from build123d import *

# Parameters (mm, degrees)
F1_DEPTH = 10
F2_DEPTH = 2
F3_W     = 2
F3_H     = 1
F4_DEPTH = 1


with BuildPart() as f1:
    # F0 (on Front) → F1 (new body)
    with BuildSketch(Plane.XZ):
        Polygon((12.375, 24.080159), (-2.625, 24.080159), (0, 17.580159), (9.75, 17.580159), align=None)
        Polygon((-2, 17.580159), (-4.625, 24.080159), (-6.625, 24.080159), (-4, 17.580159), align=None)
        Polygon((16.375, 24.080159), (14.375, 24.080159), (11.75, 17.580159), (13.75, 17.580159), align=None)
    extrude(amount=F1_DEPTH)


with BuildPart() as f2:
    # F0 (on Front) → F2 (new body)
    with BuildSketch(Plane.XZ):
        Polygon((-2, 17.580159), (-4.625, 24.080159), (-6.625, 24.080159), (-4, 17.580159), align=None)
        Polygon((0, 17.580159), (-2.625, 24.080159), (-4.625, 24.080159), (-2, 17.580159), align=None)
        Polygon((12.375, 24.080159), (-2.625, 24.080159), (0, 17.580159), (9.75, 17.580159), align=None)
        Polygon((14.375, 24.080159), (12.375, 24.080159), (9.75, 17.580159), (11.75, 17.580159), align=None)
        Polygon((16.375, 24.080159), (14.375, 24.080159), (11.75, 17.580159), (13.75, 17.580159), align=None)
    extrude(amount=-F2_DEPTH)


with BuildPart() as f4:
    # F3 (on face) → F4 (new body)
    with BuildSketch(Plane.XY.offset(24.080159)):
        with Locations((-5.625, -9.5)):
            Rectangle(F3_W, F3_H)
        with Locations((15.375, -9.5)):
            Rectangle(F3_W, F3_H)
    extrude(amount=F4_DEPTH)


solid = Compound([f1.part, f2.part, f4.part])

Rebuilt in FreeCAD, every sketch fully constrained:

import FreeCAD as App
import Part
import Sketcher
Q = App.Units.Quantity


def add_polygon(sketch, points):
    """Adds a closed chain of lines whose ends are joined by coincident constraints."""
    first, n = sketch.GeometryCount, len(points)
    for a, b in zip(points, points[1:] + points[:1]):
        sketch.addGeometry(Part.LineSegment(App.Vector(*a, 0), App.Vector(*b, 0)), False)
    for i in range(n):
        sketch.addConstraint(Sketcher.Constraint("Coincident", first + i, 2, first + (i + 1) % n, 1))

doc = App.newDocument("Part")
params = doc.addObject("Spreadsheet::Sheet", "Params")
for row, (alias, value) in enumerate([
    ("sketch1_width", "15 mm"),
    ("sketch1_width2", "2 mm"),
    ("sketch1_width3", "9.75 mm"),
    ("pad1_length", "10 mm"),
    ("sketch2_width", "23 mm"),
    ("sketch2_width2", "17.75 mm"),
    ("pad2_length", "2 mm"),
    ("sketch3_width", "2 mm"),
    ("sketch3_height", "1 mm"),
    ("pad3_length", "1 mm"),
], start=1):
    params.set(f"A{row}", alias)
    params.set(f"B{row}", "=" + value)
    params.setAlias(f"B{row}", alias)

body = doc.addObject("PartDesign::Body", "Body")
body.AllowCompound = True

sketch1 = body.newObject("Sketcher::SketchObject", "Sketch")
sketch1.AttachmentSupport = (doc.getObject("XZ_Plane"), [""])
sketch1.MapMode = "FlatFace"
add_polygon(sketch1, [(12.4, 24.1), (-2.6, 24.1), (0, 17.6), (9.8, 17.6)])
add_polygon(sketch1, [(-2, 17.6), (-4.6, 24.1), (-6.6, 24.1), (-4, 17.6)])
add_polygon(sketch1, [(16.4, 24.1), (14.4, 24.1), (11.8, 17.6), (13.8, 17.6)])
sketch1.addConstraint(Sketcher.Constraint("Horizontal", 0))
sketch1.addConstraint(Sketcher.Constraint("Horizontal", 2))
sketch1.addConstraint(Sketcher.Constraint("Horizontal", 5))
sketch1.addConstraint(Sketcher.Constraint("Horizontal", 7))
sketch1.addConstraint(Sketcher.Constraint("Horizontal", 8))
sketch1.addConstraint(Sketcher.Constraint("Horizontal", 10))
sketch1.addConstraint(Sketcher.Constraint("PointOnObject", 1, 2, -2))
sketch1.addConstraint(Sketcher.Constraint("Parallel", 1, 4))
sketch1.addConstraint(Sketcher.Constraint("Parallel", 4, 6))
sketch1.addConstraint(Sketcher.Constraint("Parallel", 3, 9))
sketch1.addConstraint(Sketcher.Constraint("Parallel", 9, 11))
sketch1.addConstraint(Sketcher.Constraint("Horizontal", 3, 2, 4, 2))
sketch1.addConstraint(Sketcher.Constraint("Horizontal", 2, 2, 6, 2))
sketch1.addConstraint(Sketcher.Constraint("Horizontal", 5, 2, 8, 2))
sketch1.addConstraint(Sketcher.Constraint("Horizontal", 7, 2, 9, 2))
sketch1.addConstraint(Sketcher.Constraint("Equal", 7, 8))
sketch1.addConstraint(Sketcher.Constraint("Equal", 1, 3))
sketch1.addConstraint(Sketcher.Constraint("DistanceX", 0, 2, 0, 1, Q("15 mm")))
sketch1.addConstraint(Sketcher.Constraint("DistanceX", 5, 2, 5, 1, Q("2 mm")))
sketch1.addConstraint(Sketcher.Constraint("DistanceX", 6, 2, -1, 1, Q("4 mm")))
sketch1.addConstraint(Sketcher.Constraint("DistanceX", 3, 2, 8, 2, Q("2 mm")))
sketch1.addConstraint(Sketcher.Constraint("DistanceX", 2, 1, 2, 2, Q("9.75 mm")))
sketch1.addConstraint(Sketcher.Constraint("DistanceY", 1, 2, 0, 2, Q("6.5 mm")))
sketch1.addConstraint(Sketcher.Constraint("DistanceY", -1, 1, 0, 2, Q("24.080159 mm")))
sketch1.setExpression("Constraints[29]", "Params.sketch1_width")
sketch1.setExpression("Constraints[30]", "Params.sketch1_width2")
sketch1.setExpression("Constraints[33]", "Params.sketch1_width3")
pad1 = body.newObject("PartDesign::Pad", "Pad")
pad1.Profile = sketch1
pad1.setExpression("Length", "Params.pad1_length")
body2 = doc.addObject("PartDesign::Body", "Body001")

sketch2 = body2.newObject("Sketcher::SketchObject", "Sketch001")
sketch2.AttachmentSupport = (doc.getObject("XZ_Plane001"), [""])
sketch2.MapMode = "FlatFace"
add_polygon(sketch2, [(-7, 24), (-4, 18), (14, 18), (16, 24)])
sketch2.addConstraint(Sketcher.Constraint("Horizontal", 1))
sketch2.addConstraint(Sketcher.Constraint("Horizontal", 3))
sketch2.addConstraint(Sketcher.Constraint("Equal", 0, 2))
sketch2.addConstraint(Sketcher.Constraint("DistanceX", 3, 2, 3, 1, Q("23 mm")))
sketch2.addConstraint(Sketcher.Constraint("DistanceX", 0, 2, -1, 1, Q("4 mm")))
sketch2.addConstraint(Sketcher.Constraint("DistanceX", 1, 1, 1, 2, Q("17.75 mm")))
sketch2.addConstraint(Sketcher.Constraint("DistanceY", 1, 2, 2, 2, Q("6.5 mm")))
sketch2.addConstraint(Sketcher.Constraint("DistanceY", -1, 1, 0, 2, Q("17.580159 mm")))
sketch2.setExpression("Constraints[7]", "Params.sketch2_width")
sketch2.setExpression("Constraints[9]", "Params.sketch2_width2")
pad2 = body2.newObject("PartDesign::Pad", "Pad001")
pad2.Profile = sketch2
pad2.setExpression("Length", "Params.pad2_length")
pad2.Reversed = True
body3 = doc.addObject("PartDesign::Body", "Body002")
body3.AllowCompound = True

sketch3 = body3.newObject("Sketcher::SketchObject", "Sketch002")
sketch3.AttachmentSupport = (doc.getObject("XY_Plane002"), [""])
sketch3.MapMode = "FlatFace"
sketch3.AttachmentOffset = App.Placement(App.Vector(0, 0, 24.080159), App.Rotation())
add_polygon(sketch3, [(-6.6, -9), (-6.6, -10), (-4.6, -10), (-4.6, -9)])
add_polygon(sketch3, [(14.4, -9), (14.4, -10), (16.4, -10), (16.4, -9)])
sketch3.addConstraint(Sketcher.Constraint("Vertical", 0))
sketch3.addConstraint(Sketcher.Constraint("Horizontal", 1))
sketch3.addConstraint(Sketcher.Constraint("Vertical", 2))
sketch3.addConstraint(Sketcher.Constraint("Horizontal", 3))
sketch3.addConstraint(Sketcher.Constraint("Vertical", 4))
sketch3.addConstraint(Sketcher.Constraint("Horizontal", 5))
sketch3.addConstraint(Sketcher.Constraint("Vertical", 6))
sketch3.addConstraint(Sketcher.Constraint("Horizontal", 7))
sketch3.addConstraint(Sketcher.Constraint("Horizontal", 1, 2, 4, 2))
sketch3.addConstraint(Sketcher.Constraint("Horizontal", 3, 2, 6, 2))
sketch3.addConstraint(Sketcher.Constraint("Equal", 3, 5))
sketch3.addConstraint(Sketcher.Constraint("DistanceX", 1, 1, 1, 2, Q("2 mm")))
sketch3.addConstraint(Sketcher.Constraint("DistanceY", 0, 2, 0, 1, Q("1 mm")))
sketch3.addConstraint(Sketcher.Constraint("DistanceY", 0, 2, -1, 1, Q("10 mm")))
sketch3.addConstraint(Sketcher.Constraint("DistanceX", 1, 2, 4, 2, Q("19 mm")))
sketch3.addConstraint(Sketcher.Constraint("DistanceX", 0, 2, -1, 1, Q("6.625 mm")))
sketch3.setExpression("Constraints[19]", "Params.sketch3_width")
sketch3.setExpression("Constraints[20]", "Params.sketch3_height")
pad3 = body3.newObject("PartDesign::Pad", "Pad002")
pad3.Profile = sketch3
pad3.setExpression("Length", "Params.pad3_length")

doc.recompute()
